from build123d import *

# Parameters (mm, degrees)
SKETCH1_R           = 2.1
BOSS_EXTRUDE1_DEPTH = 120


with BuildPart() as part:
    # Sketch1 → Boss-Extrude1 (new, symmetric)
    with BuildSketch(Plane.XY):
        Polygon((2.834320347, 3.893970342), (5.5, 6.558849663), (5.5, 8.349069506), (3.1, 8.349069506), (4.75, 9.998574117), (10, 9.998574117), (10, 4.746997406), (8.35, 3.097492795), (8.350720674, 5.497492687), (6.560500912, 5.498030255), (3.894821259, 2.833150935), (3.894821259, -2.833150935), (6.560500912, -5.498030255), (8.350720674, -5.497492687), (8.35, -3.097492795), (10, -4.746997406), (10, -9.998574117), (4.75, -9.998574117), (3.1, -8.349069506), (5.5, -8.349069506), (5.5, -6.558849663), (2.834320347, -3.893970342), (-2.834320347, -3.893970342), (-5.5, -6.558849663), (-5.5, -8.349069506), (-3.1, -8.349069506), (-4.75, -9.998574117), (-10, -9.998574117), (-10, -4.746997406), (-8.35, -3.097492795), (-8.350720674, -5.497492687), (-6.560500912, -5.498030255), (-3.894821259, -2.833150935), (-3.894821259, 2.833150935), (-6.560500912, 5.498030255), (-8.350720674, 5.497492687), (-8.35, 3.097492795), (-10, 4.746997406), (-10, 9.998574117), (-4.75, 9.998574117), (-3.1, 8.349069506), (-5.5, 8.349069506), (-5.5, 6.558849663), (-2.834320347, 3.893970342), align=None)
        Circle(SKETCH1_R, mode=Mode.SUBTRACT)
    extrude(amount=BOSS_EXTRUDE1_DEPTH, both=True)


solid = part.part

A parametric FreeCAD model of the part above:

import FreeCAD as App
import Part
import Sketcher

V = App.Vector

doc = App.newDocument("Part")
body = doc.addObject("PartDesign::Body", "Body")

# Sketch on XY plane
sketch1 = doc.addObject("Sketcher::SketchObject", "Sketch")
body.addObject(sketch1)
sketch1.AttachmentSupport = (doc.XY_Plane, [""])
sketch1.MapMode = "FlatFace"
sketch1.addGeometry([
    Part.LineSegment(V(5.5, 6.6, 0), V(2.8, 3.9, 0)),  # 0
    Part.LineSegment(V(2.8, 3.9, 0), V(-2.8, 3.9, 0)),  # 1
    Part.LineSegment(V(-2.8, 3.9, 0), V(-5.5, 6.6, 0)),  # 2
    Part.LineSegment(V(-5.5, 6.6, 0), V(-5.5, 8.3, 0)),  # 3
    Part.LineSegment(V(-5.5, 8.3, 0), V(-3.1, 8.3, 0)),  # 4
    Part.LineSegment(V(-3.1, 8.3, 0), V(-4.8, 10, 0)),  # 5
    Part.LineSegment(V(-4.8, 10, 0), V(-10, 10, 0)),  # 6
    Part.LineSegment(V(-10, 10, 0), V(-10, 4.7, 0)),  # 7
    Part.LineSegment(V(-10, 4.7, 0), V(-8.3, 3.1, 0)),  # 8
    Part.LineSegment(V(-8.3, 3.1, 0), V(-8.4, 5.5, 0)),  # 9
    Part.LineSegment(V(-8.4, 5.5, 0), V(-6.6, 5.5, 0)),  # 10
    Part.LineSegment(V(-6.6, 5.5, 0), V(-3.9, 2.8, 0)),  # 11
    Part.LineSegment(V(-3.9, 2.8, 0), V(-3.9, -2.8, 0)),  # 12
    Part.LineSegment(V(-3.9, -2.8, 0), V(-6.6, -5.5, 0)),  # 13
    Part.LineSegment(V(-6.6, -5.5, 0), V(-8.4, -5.5, 0)),  # 14
    Part.LineSegment(V(-8.4, -5.5, 0), V(-8.3, -3.1, 0)),  # 15
    Part.LineSegment(V(-8.3, -3.1, 0), V(-10, -4.7, 0)),  # 16
    Part.LineSegment(V(-10, -4.7, 0), V(-10, -10, 0)),  # 17
    Part.LineSegment(V(-10, -10, 0), V(-4.8, -10, 0)),  # 18
    Part.LineSegment(V(-4.8, -10, 0), V(-3.1, -8.3, 0)),  # 19
    Part.LineSegment(V(-3.1, -8.3, 0), V(-5.5, -8.3, 0)),  # 20
    Part.LineSegment(V(-5.5, -8.3, 0), V(-5.5, -6.6, 0)),  # 21
    Part.LineSegment(V(-5.5, -6.6, 0), V(-2.8, -3.9, 0)),  # 22
    Part.LineSegment(V(-2.8, -3.9, 0), V(2.8, -3.9, 0)),  # 23
    Part.LineSegment(V(2.8, -3.9, 0), V(5.5, -6.6, 0)),  # 24
    Part.LineSegment(V(5.5, -6.6, 0), V(5.5, -8.3, 0)),  # 25
    Part.LineSegment(V(5.5, -8.3, 0), V(3.1, -8.3, 0)),  # 26
    Part.LineSegment(V(3.1, -8.3, 0), V(4.8, -10, 0)),  # 27
    Part.LineSegment(V(4.8, -10, 0), V(10, -10, 0)),  # 28
    Part.LineSegment(V(10, -10, 0), V(10, -4.7, 0)),  # 29
    Part.LineSegment(V(10, -4.7, 0), V(8.3, -3.1, 0)),  # 30
    Part.LineSegment(V(8.3, -3.1, 0), V(8.4, -5.5, 0)),  # 31
    Part.LineSegment(V(8.4, -5.5, 0), V(6.6, -5.5, 0)),  # 32
    Part.LineSegment(V(6.6, -5.5, 0), V(3.9, -2.8, 0)),  # 33
    Part.LineSegment(V(3.9, -2.8, 0), V(3.9, 2.8, 0)),  # 34
    Part.LineSegment(V(3.9, 2.8, 0), V(6.6, 5.5, 0)),  # 35
    Part.LineSegment(V(6.6, 5.5, 0), V(8.4, 5.5, 0)),  # 36
    Part.LineSegment(V(8.4, 5.5, 0), V(8.3, 3.1, 0)),  # 37
    Part.LineSegment(V(8.3, 3.1, 0), V(10, 4.7, 0)),  # 38
    Part.LineSegment(V(10, 4.7, 0), V(10, 10, 0)),  # 39
    Part.LineSegment(V(10, 10, 0), V(4.8, 10, 0)),  # 40
    Part.LineSegment(V(4.8, 10, 0), V(3.1, 8.3, 0)),  # 41
    Part.LineSegment(V(3.1, 8.3, 0), V(5.5, 8.3, 0)),  # 42
    Part.LineSegment(V(5.5, 8.3, 0), V(5.5, 6.6, 0)),  # 43
    Part.Circle(V(0, 0, 0), V(0, 0, 1), 2.1),  # 44
], False)
sketch1.addConstraint([
    Sketcher.Constraint("Coincident", 0, 2, 1, 1),
    Sketcher.Constraint("Coincident", 1, 2, 2, 1),
    Sketcher.Constraint("Coincident", 2, 2, 3, 1),
    Sketcher.Constraint("Coincident", 3, 2, 4, 1),
    Sketcher.Constraint("Coincident", 4, 2, 5, 1),
    Sketcher.Constraint("Coincident", 5, 2, 6, 1),
    Sketcher.Constraint("Coincident", 6, 2, 7, 1),
    Sketcher.Constraint("Coincident", 7, 2, 8, 1),
    Sketcher.Constraint("Coincident", 8, 2, 9, 1),
    Sketcher.Constraint("Coincident", 9, 2, 10, 1),
    Sketcher.Constraint("Coincident", 10, 2, 11, 1),
    Sketcher.Constraint("Coincident", 11, 2, 12, 1),
    Sketcher.Constraint("Coincident", 12, 2, 13, 1),
    Sketcher.Constraint("Coincident", 13, 2, 14, 1),
    Sketcher.Constraint("Coincident", 14, 2, 15, 1),
    Sketcher.Constraint("Coincident", 15, 2, 16, 1),
    Sketcher.Constraint("Coincident", 16, 2, 17, 1),
    Sketcher.Constraint("Coincident", 17, 2, 18, 1),
    Sketcher.Constraint("Coincident", 18, 2, 19, 1),
    Sketcher.Constraint("Coincident", 19, 2, 20, 1),
    Sketcher.Constraint("Coincident", 20, 2, 21, 1),
    Sketcher.Constraint("Coincident", 21, 2, 22, 1),
    Sketcher.Constraint("Coincident", 22, 2, 23, 1),
    Sketcher.Constraint("Coincident", 23, 2, 24, 1),
    Sketcher.Constraint("Coincident", 24, 2, 25, 1),
    Sketcher.Constraint("Coincident", 25, 2, 26, 1),
    Sketcher.Constraint("Coincident", 26, 2, 27, 1),
    Sketcher.Constraint("Coincident", 27, 2, 28, 1),
    Sketcher.Constraint("Coincident", 28, 2, 29, 1),
    Sketcher.Constraint("Coincident", 29, 2, 30, 1),
    Sketcher.Constraint("Coincident", 30, 2, 31, 1),
    Sketcher.Constraint("Coincident", 31, 2, 32, 1),
    Sketcher.Constraint("Coincident", 32, 2, 33, 1),
    Sketcher.Constraint("Coincident", 33, 2, 34, 1),
    Sketcher.Constraint("Coincident", 34, 2, 35, 1),
    Sketcher.Constraint("Coincident", 35, 2, 36, 1),
    Sketcher.Constraint("Coincident", 36, 2, 37, 1),
    Sketcher.Constraint("Coincident", 37, 2, 38, 1),
    Sketcher.Constraint("Coincident", 38, 2, 39, 1),
    Sketcher.Constraint("Coincident", 39, 2, 40, 1),
    Sketcher.Constraint("Coincident", 40, 2, 41, 1),
    Sketcher.Constraint("Coincident", 41, 2, 42, 1),
    Sketcher.Constraint("Coincident", 42, 2, 43, 1),
    Sketcher.Constraint("Coincident", 43, 2, 0, 1),
    Sketcher.Constraint("Horizontal", 1),
    Sketcher.Constraint("Vertical", 3),
    Sketcher.Constraint("Horizontal", 4),
    Sketcher.Constraint("Horizontal", 6),
    Sketcher.Constraint("Vertical", 7),
    Sketcher.Constraint("Vertical", 12),
    Sketcher.Constraint("Vertical", 17),
    Sketcher.Constraint("Horizontal", 18),
    Sketcher.Constraint("Horizontal", 20),
    Sketcher.Constraint("Vertical", 21),
    Sketcher.Constraint("Horizontal", 23),
    Sketcher.Constraint("Vertical", 25),
    Sketcher.Constraint("Horizontal", 26),
    Sketcher.Constraint("Horizontal", 28),
    Sketcher.Constraint("Vertical", 29),
    Sketcher.Constraint("Vertical", 34),
    Sketcher.Constraint("Vertical", 39),
    Sketcher.Constraint("Horizontal", 40),
    Sketcher.Constraint("Horizontal", 42),
    Sketcher.Constraint("Vertical", 43),
    Sketcher.Constraint("Coincident", 44, 3, -1, 1),
    Sketcher.Constraint("Symmetric", 0, 2, 22, 2, -1, 1),
    Sketcher.Constraint("Symmetric", 2, 2, 24, 2, -1, 1),
    Sketcher.Constraint("Symmetric", 4, 2, 26, 2, -1, 1),
    Sketcher.Constraint("Symmetric", 5, 2, 27, 2, -1, 1),
    Sketcher.Constraint("Symmetric", 7, 2, 29, 2, -1, 1),
    Sketcher.Constraint("Symmetric", 8, 2, 30, 2, -1, 1),
    Sketcher.Constraint("Symmetric", 9, 2, 31, 2, -1, 1),
    Sketcher.Constraint("Symmetric", 10, 2, 32, 2, -1, 1),
    Sketcher.Constraint("Symmetric", 11, 2, 33, 2, -1, 1),
    Sketcher.Constraint("Symmetric", 13, 2, 35, 2, -1, 1),
    Sketcher.Constraint("Symmetric", 14, 2, 36, 2, -1, 1),
    Sketcher.Constraint("Symmetric", 15, 2, 37, 2, -1, 1),
    Sketcher.Constraint("Symmetric", 16, 2, 38, 2, -1, 1),
    Sketcher.Constraint("Symmetric", 18, 2, 40, 2, -1, 1),
    Sketcher.Constraint("Symmetric", 19, 2, 41, 2, -1, 1),
    Sketcher.Constraint("Symmetric", 21, 2, 43, 2, -1, 1),
    Sketcher.Constraint("Symmetric", 21, 2, 24, 2, -2),
    Sketcher.Constraint("Symmetric", 19, 2, 26, 2, -2),
    Sketcher.Constraint("Symmetric", 18, 2, 27, 2, -2),
    Sketcher.Constraint("Symmetric", 16, 2, 29, 2, -2),
    Sketcher.Constraint("Symmetric", 15, 2, 30, 2, -2),
    Sketcher.Constraint("Symmetric", 14, 2, 31, 2, -2),
    Sketcher.Constraint("Symmetric", 13, 2, 32, 2, -2),
    Sketcher.Constraint("Parallel", 2, 5),
    Sketcher.Constraint("Parallel", 5, 8),
    Sketcher.Constraint("Perpendicular", 9, 10),
    Sketcher.Constraint("Parallel", 8, 11),
    Sketcher.Constraint("Parallel", 0, 13),
    Sketcher.Constraint("Parallel", 13, 16),
    Sketcher.Constraint("Parallel", 11, 24),
    Sketcher.Constraint("Parallel", 22, 35),
    Sketcher.Constraint("Equal", 5, 8),
    Sketcher.Constraint("Equal", 2, 11),
    Sketcher.Constraint("Diameter", 44, 4.2),
    Sketcher.Constraint("DistanceX", 4, 1, 4, 2, 2.4),
    Sketcher.Constraint("DistanceX", 6, 2, -1, 1, 10.0),
    Sketcher.Constraint("Distance", 9, 2.4),
    Sketcher.Constraint("DistanceX", 6, 2, 6, 1, 5.25),
    Sketcher.Constraint("DistanceX", 2, 2, -1, 1, 5.5),
    Sketcher.Constraint("DistanceY", 12, 2, 12, 1, 5.666302),
    Sketcher.Constraint("DistanceY", 13, 2, 1, 2, 9.392001),
    Sketcher.Constraint("DistanceX", 1, 2, 1, 1, 5.668641),
    Sketcher.Constraint("DistanceY", 3, 1, 3, 2, 1.79022),
    Sketcher.Constraint("DistanceX", 10, 2, -1, 1, 6.560501),
    Sketcher.Constraint("DistanceY", 1, 2, 3, 2, 4.455099),
    Sketcher.Constraint("DistanceX", 14, 2, 12, 2, 4.455899),
])
pad1 = doc.addObject("PartDesign::Pad", "Pad")
body.addObject(pad1)
pad1.Profile = sketch1
pad1.Length = 240
pad1.Midplane = True

doc.recompute()
